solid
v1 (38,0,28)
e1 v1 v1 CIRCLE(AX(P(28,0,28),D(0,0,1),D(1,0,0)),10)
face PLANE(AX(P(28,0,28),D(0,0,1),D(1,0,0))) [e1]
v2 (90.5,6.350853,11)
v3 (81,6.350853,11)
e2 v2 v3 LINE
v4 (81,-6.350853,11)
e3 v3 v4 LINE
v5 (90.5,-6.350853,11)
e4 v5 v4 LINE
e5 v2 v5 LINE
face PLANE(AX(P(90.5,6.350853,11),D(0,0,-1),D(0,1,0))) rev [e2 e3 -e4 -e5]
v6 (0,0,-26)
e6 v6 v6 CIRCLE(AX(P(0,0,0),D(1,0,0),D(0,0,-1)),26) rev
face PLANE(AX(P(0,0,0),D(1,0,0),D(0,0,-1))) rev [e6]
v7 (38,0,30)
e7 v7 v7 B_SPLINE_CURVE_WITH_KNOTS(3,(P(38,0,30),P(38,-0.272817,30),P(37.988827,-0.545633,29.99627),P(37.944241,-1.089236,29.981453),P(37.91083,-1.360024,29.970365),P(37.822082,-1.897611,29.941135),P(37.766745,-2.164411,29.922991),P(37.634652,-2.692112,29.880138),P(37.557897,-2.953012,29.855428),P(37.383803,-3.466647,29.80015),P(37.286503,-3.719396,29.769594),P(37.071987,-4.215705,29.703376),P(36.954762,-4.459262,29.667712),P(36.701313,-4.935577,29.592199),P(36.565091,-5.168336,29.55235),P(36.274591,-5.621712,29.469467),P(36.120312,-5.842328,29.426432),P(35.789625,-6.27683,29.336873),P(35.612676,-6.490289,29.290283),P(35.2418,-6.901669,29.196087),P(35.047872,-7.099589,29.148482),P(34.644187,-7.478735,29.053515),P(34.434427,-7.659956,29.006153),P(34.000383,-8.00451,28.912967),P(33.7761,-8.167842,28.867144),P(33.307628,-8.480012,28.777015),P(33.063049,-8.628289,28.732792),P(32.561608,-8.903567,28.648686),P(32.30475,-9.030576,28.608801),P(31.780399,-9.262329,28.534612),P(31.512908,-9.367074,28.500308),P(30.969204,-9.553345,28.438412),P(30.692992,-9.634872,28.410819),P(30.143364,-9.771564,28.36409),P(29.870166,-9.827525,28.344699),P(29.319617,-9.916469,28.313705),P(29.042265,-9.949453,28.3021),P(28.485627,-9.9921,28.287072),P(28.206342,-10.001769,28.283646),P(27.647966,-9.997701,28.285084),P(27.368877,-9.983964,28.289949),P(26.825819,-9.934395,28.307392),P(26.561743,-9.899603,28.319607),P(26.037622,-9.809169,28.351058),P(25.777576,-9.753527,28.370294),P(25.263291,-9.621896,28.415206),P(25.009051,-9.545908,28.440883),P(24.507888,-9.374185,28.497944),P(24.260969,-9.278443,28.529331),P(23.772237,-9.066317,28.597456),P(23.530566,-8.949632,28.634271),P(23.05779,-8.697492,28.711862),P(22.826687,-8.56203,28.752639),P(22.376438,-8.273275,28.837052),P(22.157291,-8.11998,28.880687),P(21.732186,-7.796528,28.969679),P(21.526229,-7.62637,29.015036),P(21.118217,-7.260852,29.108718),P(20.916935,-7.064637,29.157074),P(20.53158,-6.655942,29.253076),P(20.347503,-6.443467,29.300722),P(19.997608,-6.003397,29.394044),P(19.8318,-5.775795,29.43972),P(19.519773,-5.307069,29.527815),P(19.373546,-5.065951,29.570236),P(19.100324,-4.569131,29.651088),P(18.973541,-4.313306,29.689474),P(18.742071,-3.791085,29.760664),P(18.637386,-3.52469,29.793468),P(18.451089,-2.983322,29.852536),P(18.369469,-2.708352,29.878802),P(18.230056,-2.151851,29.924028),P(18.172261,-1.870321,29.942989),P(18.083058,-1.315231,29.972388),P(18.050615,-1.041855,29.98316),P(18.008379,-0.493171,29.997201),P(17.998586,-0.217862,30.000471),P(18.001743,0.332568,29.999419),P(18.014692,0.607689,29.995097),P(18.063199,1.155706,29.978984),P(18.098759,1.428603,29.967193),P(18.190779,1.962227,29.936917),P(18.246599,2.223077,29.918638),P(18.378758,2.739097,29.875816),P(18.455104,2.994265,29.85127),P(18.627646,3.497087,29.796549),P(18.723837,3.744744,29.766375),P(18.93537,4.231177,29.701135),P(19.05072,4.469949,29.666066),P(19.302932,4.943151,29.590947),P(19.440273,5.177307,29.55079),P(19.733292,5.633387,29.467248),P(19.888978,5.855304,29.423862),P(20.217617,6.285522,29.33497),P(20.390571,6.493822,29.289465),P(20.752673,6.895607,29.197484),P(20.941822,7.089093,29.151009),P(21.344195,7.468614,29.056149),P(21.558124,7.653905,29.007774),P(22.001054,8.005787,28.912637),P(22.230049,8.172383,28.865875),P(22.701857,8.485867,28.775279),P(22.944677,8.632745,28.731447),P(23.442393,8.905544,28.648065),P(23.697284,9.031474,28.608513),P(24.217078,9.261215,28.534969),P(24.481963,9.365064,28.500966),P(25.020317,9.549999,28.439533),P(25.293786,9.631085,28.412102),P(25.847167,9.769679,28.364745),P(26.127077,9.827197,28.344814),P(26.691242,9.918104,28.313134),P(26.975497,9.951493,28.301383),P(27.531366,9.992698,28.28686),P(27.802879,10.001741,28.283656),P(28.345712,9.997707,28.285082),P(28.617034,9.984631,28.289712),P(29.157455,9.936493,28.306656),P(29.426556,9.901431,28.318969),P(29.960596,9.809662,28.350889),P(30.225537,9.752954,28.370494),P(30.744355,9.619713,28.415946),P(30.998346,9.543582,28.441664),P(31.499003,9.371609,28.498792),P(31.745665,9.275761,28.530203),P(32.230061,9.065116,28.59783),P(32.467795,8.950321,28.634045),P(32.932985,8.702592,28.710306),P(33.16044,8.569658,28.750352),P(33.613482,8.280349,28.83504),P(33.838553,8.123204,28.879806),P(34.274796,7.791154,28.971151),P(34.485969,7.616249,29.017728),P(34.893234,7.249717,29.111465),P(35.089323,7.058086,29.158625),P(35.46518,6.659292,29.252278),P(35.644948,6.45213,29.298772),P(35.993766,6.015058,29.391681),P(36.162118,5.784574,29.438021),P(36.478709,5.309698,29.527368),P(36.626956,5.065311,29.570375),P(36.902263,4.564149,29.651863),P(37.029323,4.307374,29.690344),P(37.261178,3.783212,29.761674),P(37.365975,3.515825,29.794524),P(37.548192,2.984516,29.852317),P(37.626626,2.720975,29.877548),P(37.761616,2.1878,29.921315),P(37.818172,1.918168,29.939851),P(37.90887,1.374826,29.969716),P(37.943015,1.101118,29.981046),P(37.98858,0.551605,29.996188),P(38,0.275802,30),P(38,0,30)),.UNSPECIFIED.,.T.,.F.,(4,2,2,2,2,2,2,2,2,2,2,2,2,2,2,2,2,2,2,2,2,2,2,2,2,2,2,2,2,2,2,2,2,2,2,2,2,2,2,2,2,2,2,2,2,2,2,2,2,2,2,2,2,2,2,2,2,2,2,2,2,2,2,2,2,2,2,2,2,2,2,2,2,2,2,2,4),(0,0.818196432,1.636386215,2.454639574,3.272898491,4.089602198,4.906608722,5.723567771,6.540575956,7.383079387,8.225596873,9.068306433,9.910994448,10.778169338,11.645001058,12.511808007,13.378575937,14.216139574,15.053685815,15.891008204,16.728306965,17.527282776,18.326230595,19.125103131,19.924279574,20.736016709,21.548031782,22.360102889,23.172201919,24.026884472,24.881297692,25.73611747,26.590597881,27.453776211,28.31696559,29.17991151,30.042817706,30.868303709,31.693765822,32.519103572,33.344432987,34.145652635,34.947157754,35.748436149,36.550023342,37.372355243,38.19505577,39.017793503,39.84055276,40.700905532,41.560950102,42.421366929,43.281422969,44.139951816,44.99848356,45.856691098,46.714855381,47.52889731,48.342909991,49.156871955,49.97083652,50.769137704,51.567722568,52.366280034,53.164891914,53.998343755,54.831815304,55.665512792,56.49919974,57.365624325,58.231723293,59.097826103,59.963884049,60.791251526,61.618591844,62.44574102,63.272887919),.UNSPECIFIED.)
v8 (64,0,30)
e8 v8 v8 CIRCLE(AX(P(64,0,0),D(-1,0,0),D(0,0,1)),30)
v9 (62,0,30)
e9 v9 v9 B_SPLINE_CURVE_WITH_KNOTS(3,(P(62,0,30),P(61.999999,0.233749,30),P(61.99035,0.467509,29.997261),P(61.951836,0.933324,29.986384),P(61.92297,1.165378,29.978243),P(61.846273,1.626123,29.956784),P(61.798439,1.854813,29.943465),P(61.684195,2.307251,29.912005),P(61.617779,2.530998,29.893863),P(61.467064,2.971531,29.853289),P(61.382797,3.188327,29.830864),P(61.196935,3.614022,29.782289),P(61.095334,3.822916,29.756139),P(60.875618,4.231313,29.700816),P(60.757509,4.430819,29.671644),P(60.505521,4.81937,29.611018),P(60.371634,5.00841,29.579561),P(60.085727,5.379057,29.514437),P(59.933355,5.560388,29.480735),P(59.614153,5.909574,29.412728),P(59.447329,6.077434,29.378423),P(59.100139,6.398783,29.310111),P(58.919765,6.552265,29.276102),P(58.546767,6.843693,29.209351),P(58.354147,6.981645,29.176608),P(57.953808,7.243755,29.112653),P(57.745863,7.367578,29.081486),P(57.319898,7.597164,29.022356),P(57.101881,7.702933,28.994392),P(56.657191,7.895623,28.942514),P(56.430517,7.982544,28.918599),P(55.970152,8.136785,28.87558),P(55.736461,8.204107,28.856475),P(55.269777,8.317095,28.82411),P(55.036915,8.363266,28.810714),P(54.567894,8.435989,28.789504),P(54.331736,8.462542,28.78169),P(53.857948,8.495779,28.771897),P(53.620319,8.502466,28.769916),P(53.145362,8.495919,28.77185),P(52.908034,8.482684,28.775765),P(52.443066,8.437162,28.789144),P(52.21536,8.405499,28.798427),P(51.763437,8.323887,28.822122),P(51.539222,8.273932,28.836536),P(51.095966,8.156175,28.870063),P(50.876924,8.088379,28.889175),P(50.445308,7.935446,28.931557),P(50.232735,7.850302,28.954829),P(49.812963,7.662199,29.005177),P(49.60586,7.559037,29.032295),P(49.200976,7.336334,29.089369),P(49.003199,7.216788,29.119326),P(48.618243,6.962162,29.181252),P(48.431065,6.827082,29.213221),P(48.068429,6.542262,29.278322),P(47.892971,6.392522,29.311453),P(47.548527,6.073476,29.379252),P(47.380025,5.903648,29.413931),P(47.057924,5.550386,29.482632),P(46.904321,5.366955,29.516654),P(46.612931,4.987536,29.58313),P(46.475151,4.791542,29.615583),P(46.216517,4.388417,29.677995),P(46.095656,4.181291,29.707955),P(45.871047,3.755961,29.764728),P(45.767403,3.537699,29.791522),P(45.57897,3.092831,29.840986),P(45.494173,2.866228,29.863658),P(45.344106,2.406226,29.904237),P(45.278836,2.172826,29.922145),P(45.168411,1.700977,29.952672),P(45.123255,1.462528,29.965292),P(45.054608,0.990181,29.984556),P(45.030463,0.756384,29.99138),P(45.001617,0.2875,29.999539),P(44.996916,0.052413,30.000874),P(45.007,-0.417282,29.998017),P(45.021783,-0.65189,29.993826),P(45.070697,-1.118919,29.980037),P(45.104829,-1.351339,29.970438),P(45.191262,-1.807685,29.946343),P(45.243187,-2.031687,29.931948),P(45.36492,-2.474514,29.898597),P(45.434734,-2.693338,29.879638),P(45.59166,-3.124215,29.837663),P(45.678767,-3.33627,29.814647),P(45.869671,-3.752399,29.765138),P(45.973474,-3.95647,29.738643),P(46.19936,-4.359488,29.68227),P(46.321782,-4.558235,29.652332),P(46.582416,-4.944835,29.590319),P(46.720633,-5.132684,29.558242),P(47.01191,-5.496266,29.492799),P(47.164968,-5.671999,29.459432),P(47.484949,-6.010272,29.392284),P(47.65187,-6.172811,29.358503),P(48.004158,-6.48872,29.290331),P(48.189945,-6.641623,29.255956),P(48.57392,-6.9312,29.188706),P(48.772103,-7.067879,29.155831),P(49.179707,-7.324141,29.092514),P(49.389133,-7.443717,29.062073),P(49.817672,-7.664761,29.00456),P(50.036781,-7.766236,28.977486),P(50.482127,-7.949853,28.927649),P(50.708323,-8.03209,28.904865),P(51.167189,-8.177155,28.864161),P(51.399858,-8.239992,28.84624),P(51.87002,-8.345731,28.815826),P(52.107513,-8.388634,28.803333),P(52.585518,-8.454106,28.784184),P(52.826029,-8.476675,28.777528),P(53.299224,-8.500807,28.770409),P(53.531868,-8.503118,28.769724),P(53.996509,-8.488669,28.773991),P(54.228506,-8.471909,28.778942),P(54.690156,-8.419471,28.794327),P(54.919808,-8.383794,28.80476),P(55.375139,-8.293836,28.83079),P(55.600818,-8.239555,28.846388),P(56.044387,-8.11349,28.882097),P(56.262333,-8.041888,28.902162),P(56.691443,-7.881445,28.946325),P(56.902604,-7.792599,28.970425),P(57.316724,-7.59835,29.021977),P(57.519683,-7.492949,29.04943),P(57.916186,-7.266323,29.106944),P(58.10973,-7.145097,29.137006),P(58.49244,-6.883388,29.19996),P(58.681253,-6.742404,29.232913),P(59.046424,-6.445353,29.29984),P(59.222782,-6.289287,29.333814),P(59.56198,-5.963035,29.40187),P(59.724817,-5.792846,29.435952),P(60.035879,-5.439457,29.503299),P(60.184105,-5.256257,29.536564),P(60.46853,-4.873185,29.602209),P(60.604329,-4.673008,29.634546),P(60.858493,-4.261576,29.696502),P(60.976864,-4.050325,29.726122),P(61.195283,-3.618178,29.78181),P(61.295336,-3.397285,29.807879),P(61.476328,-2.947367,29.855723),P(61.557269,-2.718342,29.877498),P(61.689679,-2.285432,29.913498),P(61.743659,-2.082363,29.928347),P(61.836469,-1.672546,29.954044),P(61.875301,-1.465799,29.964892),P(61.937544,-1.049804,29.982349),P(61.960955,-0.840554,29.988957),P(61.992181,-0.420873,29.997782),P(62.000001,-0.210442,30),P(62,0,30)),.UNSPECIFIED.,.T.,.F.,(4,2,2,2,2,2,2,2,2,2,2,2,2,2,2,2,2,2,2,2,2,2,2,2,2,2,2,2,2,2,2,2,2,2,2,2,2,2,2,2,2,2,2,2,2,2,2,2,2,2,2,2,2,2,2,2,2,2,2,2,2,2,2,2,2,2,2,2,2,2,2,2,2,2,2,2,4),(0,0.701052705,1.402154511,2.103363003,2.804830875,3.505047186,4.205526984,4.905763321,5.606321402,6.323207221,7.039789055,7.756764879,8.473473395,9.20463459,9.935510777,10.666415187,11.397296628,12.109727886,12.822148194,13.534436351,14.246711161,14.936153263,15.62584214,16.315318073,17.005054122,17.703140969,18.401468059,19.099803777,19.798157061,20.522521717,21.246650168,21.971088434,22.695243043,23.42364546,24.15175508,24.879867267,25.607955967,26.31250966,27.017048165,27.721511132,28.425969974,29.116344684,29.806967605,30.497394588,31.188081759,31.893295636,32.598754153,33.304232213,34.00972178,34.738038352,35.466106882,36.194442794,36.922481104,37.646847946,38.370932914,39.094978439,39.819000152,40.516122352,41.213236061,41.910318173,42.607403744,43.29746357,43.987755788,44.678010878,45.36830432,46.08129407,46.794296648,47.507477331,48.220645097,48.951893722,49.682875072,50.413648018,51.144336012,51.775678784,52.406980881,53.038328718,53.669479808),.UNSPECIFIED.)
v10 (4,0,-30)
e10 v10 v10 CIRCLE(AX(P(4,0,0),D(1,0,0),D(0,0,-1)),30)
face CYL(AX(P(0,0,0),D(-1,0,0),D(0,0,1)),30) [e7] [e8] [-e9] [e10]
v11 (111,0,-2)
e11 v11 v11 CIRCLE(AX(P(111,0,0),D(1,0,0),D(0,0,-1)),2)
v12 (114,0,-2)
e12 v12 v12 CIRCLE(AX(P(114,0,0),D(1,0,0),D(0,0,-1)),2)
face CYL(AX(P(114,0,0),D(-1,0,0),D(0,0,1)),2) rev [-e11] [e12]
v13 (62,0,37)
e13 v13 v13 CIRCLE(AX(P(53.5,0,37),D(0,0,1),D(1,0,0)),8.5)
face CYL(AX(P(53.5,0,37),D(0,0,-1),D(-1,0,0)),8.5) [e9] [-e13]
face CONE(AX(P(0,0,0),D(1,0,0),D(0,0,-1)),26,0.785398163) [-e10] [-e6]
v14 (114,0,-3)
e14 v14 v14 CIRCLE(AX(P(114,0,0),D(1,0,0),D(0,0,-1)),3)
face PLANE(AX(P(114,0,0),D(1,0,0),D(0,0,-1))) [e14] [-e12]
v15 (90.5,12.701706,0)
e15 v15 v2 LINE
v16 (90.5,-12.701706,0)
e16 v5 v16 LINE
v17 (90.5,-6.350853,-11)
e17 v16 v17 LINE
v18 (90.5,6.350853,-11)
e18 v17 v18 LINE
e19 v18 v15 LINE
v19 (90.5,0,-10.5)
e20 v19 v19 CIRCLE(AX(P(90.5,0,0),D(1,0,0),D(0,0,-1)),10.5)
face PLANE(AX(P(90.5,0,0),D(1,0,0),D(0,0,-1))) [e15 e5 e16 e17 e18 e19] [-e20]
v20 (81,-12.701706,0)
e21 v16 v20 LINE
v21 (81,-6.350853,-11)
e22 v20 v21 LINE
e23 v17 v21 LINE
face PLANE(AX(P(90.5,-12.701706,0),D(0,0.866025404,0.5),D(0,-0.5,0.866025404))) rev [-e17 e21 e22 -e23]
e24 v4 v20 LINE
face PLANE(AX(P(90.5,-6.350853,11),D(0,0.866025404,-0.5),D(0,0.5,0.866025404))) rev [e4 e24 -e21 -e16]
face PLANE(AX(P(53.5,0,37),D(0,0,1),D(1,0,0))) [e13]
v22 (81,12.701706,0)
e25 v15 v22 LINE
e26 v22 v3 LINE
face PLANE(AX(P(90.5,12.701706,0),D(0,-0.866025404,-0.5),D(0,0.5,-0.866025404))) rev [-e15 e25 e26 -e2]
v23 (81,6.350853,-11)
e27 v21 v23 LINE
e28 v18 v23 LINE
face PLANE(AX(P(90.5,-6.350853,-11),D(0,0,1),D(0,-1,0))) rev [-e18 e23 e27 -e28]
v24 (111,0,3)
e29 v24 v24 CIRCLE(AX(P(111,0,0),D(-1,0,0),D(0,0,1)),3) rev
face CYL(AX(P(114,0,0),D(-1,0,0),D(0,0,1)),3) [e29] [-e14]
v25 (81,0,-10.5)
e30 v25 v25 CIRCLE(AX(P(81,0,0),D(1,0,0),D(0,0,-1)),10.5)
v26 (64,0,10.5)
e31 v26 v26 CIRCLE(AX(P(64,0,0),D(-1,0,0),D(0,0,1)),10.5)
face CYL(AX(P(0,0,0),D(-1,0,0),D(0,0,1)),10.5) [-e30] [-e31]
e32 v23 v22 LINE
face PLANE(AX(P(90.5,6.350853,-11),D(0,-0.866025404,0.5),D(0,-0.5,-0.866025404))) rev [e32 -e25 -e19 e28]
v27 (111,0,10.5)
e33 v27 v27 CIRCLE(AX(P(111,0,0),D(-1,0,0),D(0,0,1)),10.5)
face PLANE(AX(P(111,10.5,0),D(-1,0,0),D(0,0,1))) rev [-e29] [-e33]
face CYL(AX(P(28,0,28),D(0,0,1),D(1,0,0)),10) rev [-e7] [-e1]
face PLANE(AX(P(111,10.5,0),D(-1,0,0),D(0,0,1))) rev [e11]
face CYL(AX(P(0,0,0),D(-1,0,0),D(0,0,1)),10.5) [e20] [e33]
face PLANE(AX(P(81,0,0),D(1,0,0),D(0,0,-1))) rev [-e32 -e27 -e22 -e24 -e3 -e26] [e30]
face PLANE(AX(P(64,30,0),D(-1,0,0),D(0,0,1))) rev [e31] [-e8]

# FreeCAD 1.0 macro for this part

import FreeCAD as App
import Part
import Sketcher

V = App.Vector
Q = App.Units.Quantity


def edges_at(feature, points):
    """Names of the edges that pass closest to the given points."""
    edges = feature.Shape.Edges
    near = lambda p: min(range(len(edges)), key=lambda i: edges[i].distToShape(Part.Vertex(*p))[0])
    return sorted({f"Edge{near(p) + 1}" for p in points})


def add_polygon(sketch, points):
    """Adds a closed chain of lines whose ends are joined by coincident constraints."""
    first, n = sketch.GeometryCount, len(points)
    for a, b in zip(points, points[1:] + points[:1]):
        sketch.addGeometry(Part.LineSegment(App.Vector(*a, 0), App.Vector(*b, 0)), False)
    for i in range(n):
        sketch.addConstraint(Sketcher.Constraint("Coincident", first + i, 2, first + (i + 1) % n, 1))

doc = App.newDocument("Part")
body = doc.addObject("PartDesign::Body", "Body")

sketch1 = body.newObject("Sketcher::SketchObject", "Sketch")
sketch1.AttachmentSupport = (doc.getObject("XY_Plane"), [""])
sketch1.MapMode = "FlatFace"
add_polygon(sketch1, [(0, 30), (0, 0), (111, 0), (111, 10.5), (64, 10.5), (64, 30)])
sketch1.addConstraint(Sketcher.Constraint("Vertical", 0))
sketch1.addConstraint(Sketcher.Constraint("Horizontal", 1))
sketch1.addConstraint(Sketcher.Constraint("Vertical", 2))
sketch1.addConstraint(Sketcher.Constraint("Horizontal", 3))
sketch1.addConstraint(Sketcher.Constraint("Vertical", 4))
sketch1.addConstraint(Sketcher.Constraint("Horizontal", 5))
sketch1.addConstraint(Sketcher.Constraint("Coincident", 0, 2, -1, 1))
sketch1.addConstraint(Sketcher.Constraint("DistanceX", 1, 1, 1, 2, Q("111 mm")))
sketch1.addConstraint(Sketcher.Constraint("DistanceX", 3, 2, 3, 1, Q("47 mm")))
sketch1.addConstraint(Sketcher.Constraint("DistanceY", 0, 2, 0, 1, Q("30 mm")))
sketch1.addConstraint(Sketcher.Constraint("DistanceY", 2, 1, 2, 2, Q("10.5 mm")))
revolution = body.newObject("PartDesign::Revolution", "Revolution")
revolution.Profile = sketch1
revolution.ReferenceAxis = (sketch1, ["H_Axis"])
revolution.Angle = 360
doc.recompute()

chamfer = body.newObject("PartDesign::Chamfer", "Chamfer")
chamfer.Base = (revolution, edges_at(revolution, [(0, 0, -30)]))
chamfer.Size = 4

sketch2 = body.newObject("Sketcher::SketchObject", "Sketch001")
sketch2.AttachmentSupport = (doc.getObject("XY_Plane"), [""])
sketch2.MapMode = "FlatFace"
sketch2.AttachmentOffset = App.Placement(V(0, 0, 30), App.Rotation())
sketch2.addGeometry(Part.Circle(V(28, 0, 0), V(0, 0, 1), 10), False)
sketch2.addConstraint(Sketcher.Constraint("PointOnObject", 0, 3, -1))
sketch2.addConstraint(Sketcher.Constraint("Diameter", 0, Q("20 mm")))
sketch2.addConstraint(Sketcher.Constraint("DistanceX", -1, 1, 0, 3, Q("28 mm")))
pocket1 = body.newObject("PartDesign::Pocket", "Pocket")
pocket1.Profile = sketch2
pocket1.Length = 2

sketch3 = body.newObject("Sketcher::SketchObject", "Sketch002")
sketch3.AttachmentSupport = (doc.getObject("YZ_Plane"), [""])
sketch3.MapMode = "FlatFace"
sketch3.AttachmentOffset = App.Placement(V(0, 0, 81), App.Rotation())
add_polygon(sketch3, [(12.701706, 0), (6.350853, 11), (-6.350853, 11), (-12.701706, 0), (-6.350853, -11), (6.350853, -11)])
sketch3.addConstraint(Sketcher.Constraint("Horizontal", 1))
sketch3.addConstraint(Sketcher.Constraint("Horizontal", 4))
sketch3.addConstraint(Sketcher.Constraint("Symmetric", 0, 2, 3, 2, -1, 1))
sketch3.addConstraint(Sketcher.Constraint("Symmetric", 2, 2, 5, 2, -1, 1))
sketch3.addConstraint(Sketcher.Constraint("PointOnObject", 2, 2, -1))
sketch3.addConstraint(Sketcher.Constraint("Parallel", 2, 5))
sketch3.addConstraint(Sketcher.Constraint("Vertical", 1, 2, 3, 2))
sketch3.addConstraint(Sketcher.Constraint("Angle", 0, Q("120 deg")))
sketch3.addConstraint(Sketcher.Constraint("DistanceY", -1, 1, 0, 2, Q("11 mm")))
sketch3.addConstraint(Sketcher.Constraint("DistanceX", 1, 2, 1, 1, Q("12.701706 mm")))
pad1 = body.newObject("PartDesign::Pad", "Pad")
pad1.Profile = sketch3
pad1.Length = 9.5

sketch4 = body.newObject("Sketcher::SketchObject", "Sketch003")
sketch4.AttachmentSupport = (doc.getObject("YZ_Plane"), [""])
sketch4.MapMode = "FlatFace"
sketch4.AttachmentOffset = App.Placement(V(0, 0, 111), App.Rotation())
sketch4.addGeometry(Part.Circle(V(0, 0, 0), V(0, 0, 1), 3), False)
sketch4.addGeometry(Part.Circle(V(0, 0, 0), V(0, 0, 1), 2), False)
sketch4.addConstraint(Sketcher.Constraint("Coincident", 0, 3, -1, 1))
sketch4.addConstraint(Sketcher.Constraint("Coincident", 1, 3, -1, 1))
sketch4.addConstraint(Sketcher.Constraint("Diameter", 0, Q("6 mm")))
sketch4.addConstraint(Sketcher.Constraint("Diameter", 1, Q("4 mm")))
pad2 = body.newObject("PartDesign::Pad", "Pad001")
pad2.Profile = sketch4
pad2.Length = 3

sketch5 = body.newObject("Sketcher::SketchObject", "Sketch004")
sketch5.AttachmentSupport = (doc.getObject("XY_Plane"), [""])
sketch5.MapMode = "FlatFace"
sketch5.AttachmentOffset = App.Placement(V(0, 0, 28), App.Rotation())
sketch5.addGeometry(Part.Circle(V(53.5, 0, 0), V(0, 0, 1), 8.5), False)
sketch5.addConstraint(Sketcher.Constraint("PointOnObject", 0, 3, -1))
sketch5.addConstraint(Sketcher.Constraint("Diameter", 0, Q("17 mm")))
sketch5.addConstraint(Sketcher.Constraint("DistanceX", -1, 1, 0, 3, Q("53.5 mm")))
pad3 = body.newObject("PartDesign::Pad", "Pad002")
pad3.Profile = sketch5
pad3.Length = 9

doc.recompute()
